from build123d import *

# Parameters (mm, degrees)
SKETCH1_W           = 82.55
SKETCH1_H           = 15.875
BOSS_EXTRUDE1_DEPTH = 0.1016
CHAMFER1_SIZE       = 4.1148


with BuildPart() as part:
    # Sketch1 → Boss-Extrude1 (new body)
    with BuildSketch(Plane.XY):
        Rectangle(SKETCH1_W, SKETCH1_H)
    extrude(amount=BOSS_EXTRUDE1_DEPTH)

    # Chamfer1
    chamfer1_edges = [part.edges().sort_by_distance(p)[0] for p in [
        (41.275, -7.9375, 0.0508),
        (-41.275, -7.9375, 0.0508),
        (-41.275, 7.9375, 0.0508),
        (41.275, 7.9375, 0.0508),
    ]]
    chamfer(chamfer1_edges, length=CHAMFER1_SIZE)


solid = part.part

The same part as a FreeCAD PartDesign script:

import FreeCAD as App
import Part
import Sketcher
from FreeCAD import Vector
Q = App.Units.Quantity


def edges_at(feature, points):
    """Names of the edges that pass closest to the given points."""
    edges = feature.Shape.Edges
    near = lambda p: min(range(len(edges)), key=lambda i: edges[i].distToShape(Part.Vertex(*p))[0])
    return sorted({f"Edge{near(p) + 1}" for p in points})

doc = App.newDocument("Part")
params = doc.addObject("Spreadsheet::Sheet", "Params")
for row, (alias, value) in enumerate([
    ("sketch1_width", "3.25 in"),
    ("sketch1_height", "0.625 in"),
    ("pad1_length", "0.004 in"),
    ("chamfer_size", "0.162 in"),
], start=1):
    params.set(f"A{row}", alias)
    params.set(f"B{row}", "=" + value)
    params.setAlias(f"B{row}", alias)

body = doc.addObject("PartDesign::Body", "Body")

sketch1 = body.newObject("Sketcher::SketchObject", "Sketch")
sketch1.AttachmentSupport = (doc.getObject("XY_Plane"), [""])
sketch1.MapMode = "FlatFace"
sketch1.addGeometry([
    Part.LineSegment(Vector(-41, 8, 0), Vector(-41, -8, 0)),
    Part.LineSegment(Vector(-41, -8, 0), Vector(41, -8, 0)),
    Part.LineSegment(Vector(41, -8, 0), Vector(41, 8, 0)),
    Part.LineSegment(Vector(41, 8, 0), Vector(-41, 8, 0)),
], False)
sketch1.addConstraint([
    Sketcher.Constraint("Coincident", 0, 2, 1, 1),
    Sketcher.Constraint("Coincident", 1, 2, 2, 1),
    Sketcher.Constraint("Coincident", 2, 2, 3, 1),
    Sketcher.Constraint("Coincident", 3, 2, 0, 1),
    Sketcher.Constraint("Vertical", 0),
    Sketcher.Constraint("Horizontal", 1),
    Sketcher.Constraint("Vertical", 2),
    Sketcher.Constraint("Horizontal", 3),
    Sketcher.Constraint("Symmetric", 0, 2, 2, 2, -1, 1),
    Sketcher.Constraint("DistanceX", 1, 1, 1, 2, Q("3.25 in")),
    Sketcher.Constraint("DistanceY", 0, 2, 0, 1, Q("0.625 in")),
])
sketch1.setExpression("Constraints[9]", "Params.sketch1_width")
sketch1.setExpression("Constraints[10]", "Params.sketch1_height")
pad1 = body.newObject("PartDesign::Pad", "Pad")
pad1.Profile = sketch1
pad1.setExpression("Length", "Params.pad1_length")
doc.recompute()

chamfer = body.newObject("PartDesign::Chamfer", "Chamfer")
chamfer.Base = (pad1, edges_at(pad1, [
    (41.275, -7.938, 0.051),
    (-41.275, -7.938, 0.051),
    (-41.275, 7.938, 0.051),
    (41.275, 7.938, 0.051),
]))
chamfer.setExpression("Size", "Params.chamfer_size")

doc.recompute()
